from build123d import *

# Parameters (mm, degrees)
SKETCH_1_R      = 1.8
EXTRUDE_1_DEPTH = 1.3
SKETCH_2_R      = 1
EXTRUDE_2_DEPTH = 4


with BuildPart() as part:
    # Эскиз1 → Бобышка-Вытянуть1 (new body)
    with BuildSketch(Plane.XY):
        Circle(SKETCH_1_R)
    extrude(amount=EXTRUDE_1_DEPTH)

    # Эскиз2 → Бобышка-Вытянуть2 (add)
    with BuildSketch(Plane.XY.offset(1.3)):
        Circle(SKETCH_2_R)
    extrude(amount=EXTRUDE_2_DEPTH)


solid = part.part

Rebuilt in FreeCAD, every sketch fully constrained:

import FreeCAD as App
import Part
import Sketcher

V = App.Vector

doc = App.newDocument("Part")
body = doc.addObject("PartDesign::Body", "Body")

# Sketch on XY plane
sketch1 = body.newObject("Sketcher::SketchObject", "Sketch")
sketch1.AttachmentSupport = (doc.getObject("XY_Plane"), [""])
sketch1.MapMode = "FlatFace"
sketch1.addGeometry(Part.Circle(V(0, 0, 0), V(0, 0, 1), 1.8), False)
sketch1.addConstraint([
    Sketcher.Constraint("Coincident", 0, 3, -1, 1),
    Sketcher.Constraint("Diameter", 0, 3.6),
])
pad1 = body.newObject("PartDesign::Pad", "Pad")
pad1.Profile = sketch1
pad1.Length = 1.3

# Sketch on XY plane
sketch2 = body.newObject("Sketcher::SketchObject", "Sketch001")
sketch2.AttachmentSupport = (doc.getObject("XY_Plane"), [""])
sketch2.MapMode = "FlatFace"
sketch2.AttachmentOffset = App.Placement(V(0, 0, 1.3), App.Rotation())
sketch2.addGeometry(Part.Circle(V(0, 0, 0), V(0, 0, 1), 1), False)
sketch2.addConstraint([
    Sketcher.Constraint("Coincident", 0, 3, -1, 1),
    Sketcher.Constraint("Diameter", 0, 2.0),
])
pad2 = body.newObject("PartDesign::Pad", "Pad001")
pad2.Profile = sketch2
pad2.Length = 4

doc.recompute()
